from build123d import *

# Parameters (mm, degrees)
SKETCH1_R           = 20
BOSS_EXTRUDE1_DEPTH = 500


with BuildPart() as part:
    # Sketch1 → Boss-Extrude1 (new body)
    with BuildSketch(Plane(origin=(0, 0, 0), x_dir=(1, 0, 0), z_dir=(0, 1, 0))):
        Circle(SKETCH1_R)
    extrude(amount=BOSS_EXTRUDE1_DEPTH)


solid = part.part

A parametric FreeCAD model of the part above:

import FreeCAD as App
import Part
import Sketcher
from FreeCAD import Vector

doc = App.newDocument("Part")
body = doc.addObject("PartDesign::Body", "Body")

# Sketch on XZ plane
sketch1 = body.newObject("Sketcher::SketchObject", "Sketch")
sketch1.AttachmentSupport = (doc.getObject("XZ_Plane"), [""])
sketch1.MapMode = "FlatFace"
sketch1.addGeometry(Part.Circle(Vector(0, 0, 0), Vector(0, 0, 1), 20), False)
sketch1.addConstraint([
    Sketcher.Constraint("Coincident", 0, 3, -1, 1),
    Sketcher.Constraint("Diameter", 0, 40.0),
])
pad1 = body.newObject("PartDesign::Pad", "Pad")
pad1.Profile = sketch1
pad1.Length = 500
pad1.Reversed = True

doc.recompute()
